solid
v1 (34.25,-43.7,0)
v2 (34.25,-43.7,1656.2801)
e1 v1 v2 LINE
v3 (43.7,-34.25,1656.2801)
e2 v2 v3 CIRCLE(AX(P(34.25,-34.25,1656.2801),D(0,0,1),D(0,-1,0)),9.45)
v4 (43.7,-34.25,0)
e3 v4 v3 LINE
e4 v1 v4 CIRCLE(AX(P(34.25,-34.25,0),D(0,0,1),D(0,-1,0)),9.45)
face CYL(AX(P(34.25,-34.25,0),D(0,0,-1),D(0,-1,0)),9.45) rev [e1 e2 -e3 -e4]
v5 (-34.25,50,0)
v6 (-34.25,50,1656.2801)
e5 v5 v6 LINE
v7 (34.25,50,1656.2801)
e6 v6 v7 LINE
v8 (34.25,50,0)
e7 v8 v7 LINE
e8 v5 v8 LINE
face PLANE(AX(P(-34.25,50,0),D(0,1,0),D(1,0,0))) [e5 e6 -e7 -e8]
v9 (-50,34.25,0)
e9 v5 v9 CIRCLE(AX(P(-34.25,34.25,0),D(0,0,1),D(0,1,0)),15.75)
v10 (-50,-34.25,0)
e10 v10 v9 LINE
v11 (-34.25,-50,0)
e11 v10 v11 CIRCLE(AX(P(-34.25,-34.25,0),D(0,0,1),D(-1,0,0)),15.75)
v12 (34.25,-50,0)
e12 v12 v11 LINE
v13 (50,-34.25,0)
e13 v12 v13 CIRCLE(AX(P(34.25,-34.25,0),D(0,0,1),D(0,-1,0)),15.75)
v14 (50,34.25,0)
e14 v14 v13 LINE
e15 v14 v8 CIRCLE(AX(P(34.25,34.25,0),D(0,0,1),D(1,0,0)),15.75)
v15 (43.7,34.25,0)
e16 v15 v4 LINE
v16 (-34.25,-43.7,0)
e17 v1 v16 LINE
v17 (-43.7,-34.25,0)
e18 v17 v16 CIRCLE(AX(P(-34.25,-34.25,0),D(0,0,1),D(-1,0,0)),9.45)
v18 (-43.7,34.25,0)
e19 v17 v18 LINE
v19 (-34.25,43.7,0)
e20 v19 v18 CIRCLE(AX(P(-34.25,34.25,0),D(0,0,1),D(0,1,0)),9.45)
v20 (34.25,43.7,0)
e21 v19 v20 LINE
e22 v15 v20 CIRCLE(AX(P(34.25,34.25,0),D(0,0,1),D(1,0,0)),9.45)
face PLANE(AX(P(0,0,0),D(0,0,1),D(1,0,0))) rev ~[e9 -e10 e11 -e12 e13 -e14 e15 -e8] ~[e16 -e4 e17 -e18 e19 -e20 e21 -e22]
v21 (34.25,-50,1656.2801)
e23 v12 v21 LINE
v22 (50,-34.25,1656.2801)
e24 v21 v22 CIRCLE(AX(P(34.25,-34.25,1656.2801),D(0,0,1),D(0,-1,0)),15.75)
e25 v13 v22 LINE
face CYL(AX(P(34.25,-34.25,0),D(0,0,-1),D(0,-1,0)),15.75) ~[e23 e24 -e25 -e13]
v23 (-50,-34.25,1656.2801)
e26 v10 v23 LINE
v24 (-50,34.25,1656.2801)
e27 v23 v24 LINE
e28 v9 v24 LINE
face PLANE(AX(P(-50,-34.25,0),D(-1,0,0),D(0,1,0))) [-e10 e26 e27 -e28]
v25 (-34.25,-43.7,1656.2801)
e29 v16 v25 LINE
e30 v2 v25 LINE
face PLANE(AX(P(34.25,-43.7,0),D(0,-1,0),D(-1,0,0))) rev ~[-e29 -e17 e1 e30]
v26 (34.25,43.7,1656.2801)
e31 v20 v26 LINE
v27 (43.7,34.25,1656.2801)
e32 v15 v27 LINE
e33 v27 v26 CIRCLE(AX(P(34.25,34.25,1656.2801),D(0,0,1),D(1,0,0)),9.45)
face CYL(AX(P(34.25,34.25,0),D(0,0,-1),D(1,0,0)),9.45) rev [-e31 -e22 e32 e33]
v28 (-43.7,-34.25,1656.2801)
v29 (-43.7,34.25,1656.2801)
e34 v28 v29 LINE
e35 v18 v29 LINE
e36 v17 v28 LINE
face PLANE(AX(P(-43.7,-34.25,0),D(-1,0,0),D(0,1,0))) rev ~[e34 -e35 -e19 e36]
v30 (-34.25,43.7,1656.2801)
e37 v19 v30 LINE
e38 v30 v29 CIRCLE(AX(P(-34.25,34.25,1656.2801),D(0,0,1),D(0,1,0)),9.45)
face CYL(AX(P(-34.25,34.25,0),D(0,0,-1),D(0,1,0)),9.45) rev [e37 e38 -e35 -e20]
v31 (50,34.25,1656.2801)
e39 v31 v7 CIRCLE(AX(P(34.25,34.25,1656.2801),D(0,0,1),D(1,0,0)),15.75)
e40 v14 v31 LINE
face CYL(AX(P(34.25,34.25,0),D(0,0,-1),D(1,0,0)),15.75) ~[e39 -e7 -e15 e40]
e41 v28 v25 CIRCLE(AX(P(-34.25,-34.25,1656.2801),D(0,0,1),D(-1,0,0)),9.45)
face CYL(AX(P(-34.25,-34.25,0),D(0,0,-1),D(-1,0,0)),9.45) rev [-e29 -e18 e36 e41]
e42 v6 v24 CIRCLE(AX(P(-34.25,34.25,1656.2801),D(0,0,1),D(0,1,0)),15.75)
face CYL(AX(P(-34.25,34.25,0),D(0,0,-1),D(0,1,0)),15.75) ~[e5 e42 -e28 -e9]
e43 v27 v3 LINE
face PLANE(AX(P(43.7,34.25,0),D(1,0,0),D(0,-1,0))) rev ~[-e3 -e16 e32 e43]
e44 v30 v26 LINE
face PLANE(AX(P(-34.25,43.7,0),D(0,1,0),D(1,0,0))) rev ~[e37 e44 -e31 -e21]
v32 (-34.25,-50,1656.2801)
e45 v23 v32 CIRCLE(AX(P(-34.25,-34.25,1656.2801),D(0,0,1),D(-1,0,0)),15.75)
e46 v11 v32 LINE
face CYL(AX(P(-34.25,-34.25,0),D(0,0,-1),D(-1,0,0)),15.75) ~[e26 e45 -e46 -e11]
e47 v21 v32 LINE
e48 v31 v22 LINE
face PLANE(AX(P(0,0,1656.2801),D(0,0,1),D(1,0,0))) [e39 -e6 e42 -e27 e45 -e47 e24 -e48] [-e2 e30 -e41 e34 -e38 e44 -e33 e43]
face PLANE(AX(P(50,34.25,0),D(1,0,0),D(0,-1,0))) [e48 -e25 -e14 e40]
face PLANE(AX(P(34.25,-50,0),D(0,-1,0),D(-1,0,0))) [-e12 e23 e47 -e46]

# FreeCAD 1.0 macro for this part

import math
import FreeCAD as App
import Part
import Sketcher

V = App.Vector
Q = App.Units.Quantity

doc = App.newDocument("Part")
body = doc.addObject("PartDesign::Body", "Body")

# Sketch on XY plane
sketch1 = body.newObject("Sketcher::SketchObject", "Sketch")
sketch1.AttachmentSupport = (doc.getObject("XY_Plane"), [""])
sketch1.MapMode = "FlatFace"
sketch1.addGeometry(Part.LineSegment(V(-50, 34, 0), V(-50, -34, 0)), False)
sketch1.addGeometry(Part.ArcOfCircle(Part.Circle(V(-34, -34, 0), V(0, 0, 1), 16), math.radians(180), math.radians(270)), False)
sketch1.addGeometry(Part.LineSegment(V(-34, -50, 0), V(34, -50, 0)), False)
sketch1.addGeometry(Part.ArcOfCircle(Part.Circle(V(34, -34, 0), V(0, 0, 1), 16), math.radians(-90), math.radians(0)), False)
sketch1.addGeometry(Part.LineSegment(V(50, -34, 0), V(50, 34, 0)), False)
sketch1.addGeometry(Part.ArcOfCircle(Part.Circle(V(34, 34, 0), V(0, 0, 1), 16), math.radians(0), math.radians(90)), False)
sketch1.addGeometry(Part.LineSegment(V(34, 50, 0), V(-34, 50, 0)), False)
sketch1.addGeometry(Part.ArcOfCircle(Part.Circle(V(-34, 34, 0), V(0, 0, 1), 16), math.radians(90), math.radians(180)), False)
sketch1.addGeometry(Part.ArcOfCircle(Part.Circle(V(-34, 34, 0), V(0, 0, 1), 9), math.radians(90), math.radians(180)), False)
sketch1.addGeometry(Part.LineSegment(V(-34, 44, 0), V(34, 44, 0)), False)
sketch1.addGeometry(Part.ArcOfCircle(Part.Circle(V(34, 34, 0), V(0, 0, 1), 9), math.radians(0), math.radians(90)), False)
sketch1.addGeometry(Part.LineSegment(V(44, 34, 0), V(44, -34, 0)), False)
sketch1.addGeometry(Part.ArcOfCircle(Part.Circle(V(34, -34, 0), V(0, 0, 1), 9), math.radians(-90), math.radians(0)), False)
sketch1.addGeometry(Part.LineSegment(V(34, -44, 0), V(-34, -44, 0)), False)
sketch1.addGeometry(Part.ArcOfCircle(Part.Circle(V(-34, -34, 0), V(0, 0, 1), 9), math.radians(180), math.radians(270)), False)
sketch1.addGeometry(Part.LineSegment(V(-44, -34, 0), V(-44, 34, 0)), False)
sketch1.addConstraint(Sketcher.Constraint("Tangent", 0, 2, 1, 1))
sketch1.addConstraint(Sketcher.Constraint("Tangent", 1, 2, 2, 1))
sketch1.addConstraint(Sketcher.Constraint("Tangent", 2, 2, 3, 1))
sketch1.addConstraint(Sketcher.Constraint("Tangent", 3, 2, 4, 1))
sketch1.addConstraint(Sketcher.Constraint("Tangent", 4, 2, 5, 1))
sketch1.addConstraint(Sketcher.Constraint("Tangent", 5, 2, 6, 1))
sketch1.addConstraint(Sketcher.Constraint("Tangent", 6, 2, 7, 1))
sketch1.addConstraint(Sketcher.Constraint("Tangent", 7, 2, 0, 1))
sketch1.addConstraint(Sketcher.Constraint("Tangent", 8, 1, 9, 1))
sketch1.addConstraint(Sketcher.Constraint("Tangent", 9, 2, 10, 2))
sketch1.addConstraint(Sketcher.Constraint("Tangent", 10, 1, 11, 1))
sketch1.addConstraint(Sketcher.Constraint("Tangent", 11, 2, 12, 2))
sketch1.addConstraint(Sketcher.Constraint("Tangent", 12, 1, 13, 1))
sketch1.addConstraint(Sketcher.Constraint("Tangent", 13, 2, 14, 2))
sketch1.addConstraint(Sketcher.Constraint("Tangent", 14, 1, 15, 1))
sketch1.addConstraint(Sketcher.Constraint("Tangent", 15, 2, 8, 2))
sketch1.addConstraint(Sketcher.Constraint("Vertical", 0))
sketch1.addConstraint(Sketcher.Constraint("Horizontal", 2))
sketch1.addConstraint(Sketcher.Constraint("Vertical", 4))
sketch1.addConstraint(Sketcher.Constraint("Horizontal", 6))
sketch1.addConstraint(Sketcher.Constraint("Horizontal", 9))
sketch1.addConstraint(Sketcher.Constraint("Vertical", 11))
sketch1.addConstraint(Sketcher.Constraint("Horizontal", 13))
sketch1.addConstraint(Sketcher.Constraint("Vertical", 15))
sketch1.addConstraint(Sketcher.Constraint("Coincident", 8, 3, 7, 3))
sketch1.addConstraint(Sketcher.Constraint("Coincident", 10, 3, 5, 3))
sketch1.addConstraint(Sketcher.Constraint("Coincident", 12, 3, 3, 3))
sketch1.addConstraint(Sketcher.Constraint("Equal", 1, 3))
sketch1.addConstraint(Sketcher.Constraint("Equal", 3, 5))
sketch1.addConstraint(Sketcher.Constraint("Equal", 5, 7))
sketch1.addConstraint(Sketcher.Constraint("Equal", 12, 14))
sketch1.addConstraint(Sketcher.Constraint("Symmetric", 1, 3, 5, 3, -1, 1))
sketch1.addConstraint(Sketcher.Constraint("Equal", 13, 0))
sketch1.addConstraint(Sketcher.Constraint("Radius", 1, Q("15.75 mm")))
sketch1.addConstraint(Sketcher.Constraint("DistanceX", 0, 2, -1, 1, Q("50 mm")))
sketch1.addConstraint(Sketcher.Constraint("DistanceY", 8, 1, 6, 2, Q("6.3 mm")))
pad1 = body.newObject("PartDesign::Pad", "Pad")
pad1.Profile = sketch1
pad1.Length = 1656.2801

doc.recompute()
